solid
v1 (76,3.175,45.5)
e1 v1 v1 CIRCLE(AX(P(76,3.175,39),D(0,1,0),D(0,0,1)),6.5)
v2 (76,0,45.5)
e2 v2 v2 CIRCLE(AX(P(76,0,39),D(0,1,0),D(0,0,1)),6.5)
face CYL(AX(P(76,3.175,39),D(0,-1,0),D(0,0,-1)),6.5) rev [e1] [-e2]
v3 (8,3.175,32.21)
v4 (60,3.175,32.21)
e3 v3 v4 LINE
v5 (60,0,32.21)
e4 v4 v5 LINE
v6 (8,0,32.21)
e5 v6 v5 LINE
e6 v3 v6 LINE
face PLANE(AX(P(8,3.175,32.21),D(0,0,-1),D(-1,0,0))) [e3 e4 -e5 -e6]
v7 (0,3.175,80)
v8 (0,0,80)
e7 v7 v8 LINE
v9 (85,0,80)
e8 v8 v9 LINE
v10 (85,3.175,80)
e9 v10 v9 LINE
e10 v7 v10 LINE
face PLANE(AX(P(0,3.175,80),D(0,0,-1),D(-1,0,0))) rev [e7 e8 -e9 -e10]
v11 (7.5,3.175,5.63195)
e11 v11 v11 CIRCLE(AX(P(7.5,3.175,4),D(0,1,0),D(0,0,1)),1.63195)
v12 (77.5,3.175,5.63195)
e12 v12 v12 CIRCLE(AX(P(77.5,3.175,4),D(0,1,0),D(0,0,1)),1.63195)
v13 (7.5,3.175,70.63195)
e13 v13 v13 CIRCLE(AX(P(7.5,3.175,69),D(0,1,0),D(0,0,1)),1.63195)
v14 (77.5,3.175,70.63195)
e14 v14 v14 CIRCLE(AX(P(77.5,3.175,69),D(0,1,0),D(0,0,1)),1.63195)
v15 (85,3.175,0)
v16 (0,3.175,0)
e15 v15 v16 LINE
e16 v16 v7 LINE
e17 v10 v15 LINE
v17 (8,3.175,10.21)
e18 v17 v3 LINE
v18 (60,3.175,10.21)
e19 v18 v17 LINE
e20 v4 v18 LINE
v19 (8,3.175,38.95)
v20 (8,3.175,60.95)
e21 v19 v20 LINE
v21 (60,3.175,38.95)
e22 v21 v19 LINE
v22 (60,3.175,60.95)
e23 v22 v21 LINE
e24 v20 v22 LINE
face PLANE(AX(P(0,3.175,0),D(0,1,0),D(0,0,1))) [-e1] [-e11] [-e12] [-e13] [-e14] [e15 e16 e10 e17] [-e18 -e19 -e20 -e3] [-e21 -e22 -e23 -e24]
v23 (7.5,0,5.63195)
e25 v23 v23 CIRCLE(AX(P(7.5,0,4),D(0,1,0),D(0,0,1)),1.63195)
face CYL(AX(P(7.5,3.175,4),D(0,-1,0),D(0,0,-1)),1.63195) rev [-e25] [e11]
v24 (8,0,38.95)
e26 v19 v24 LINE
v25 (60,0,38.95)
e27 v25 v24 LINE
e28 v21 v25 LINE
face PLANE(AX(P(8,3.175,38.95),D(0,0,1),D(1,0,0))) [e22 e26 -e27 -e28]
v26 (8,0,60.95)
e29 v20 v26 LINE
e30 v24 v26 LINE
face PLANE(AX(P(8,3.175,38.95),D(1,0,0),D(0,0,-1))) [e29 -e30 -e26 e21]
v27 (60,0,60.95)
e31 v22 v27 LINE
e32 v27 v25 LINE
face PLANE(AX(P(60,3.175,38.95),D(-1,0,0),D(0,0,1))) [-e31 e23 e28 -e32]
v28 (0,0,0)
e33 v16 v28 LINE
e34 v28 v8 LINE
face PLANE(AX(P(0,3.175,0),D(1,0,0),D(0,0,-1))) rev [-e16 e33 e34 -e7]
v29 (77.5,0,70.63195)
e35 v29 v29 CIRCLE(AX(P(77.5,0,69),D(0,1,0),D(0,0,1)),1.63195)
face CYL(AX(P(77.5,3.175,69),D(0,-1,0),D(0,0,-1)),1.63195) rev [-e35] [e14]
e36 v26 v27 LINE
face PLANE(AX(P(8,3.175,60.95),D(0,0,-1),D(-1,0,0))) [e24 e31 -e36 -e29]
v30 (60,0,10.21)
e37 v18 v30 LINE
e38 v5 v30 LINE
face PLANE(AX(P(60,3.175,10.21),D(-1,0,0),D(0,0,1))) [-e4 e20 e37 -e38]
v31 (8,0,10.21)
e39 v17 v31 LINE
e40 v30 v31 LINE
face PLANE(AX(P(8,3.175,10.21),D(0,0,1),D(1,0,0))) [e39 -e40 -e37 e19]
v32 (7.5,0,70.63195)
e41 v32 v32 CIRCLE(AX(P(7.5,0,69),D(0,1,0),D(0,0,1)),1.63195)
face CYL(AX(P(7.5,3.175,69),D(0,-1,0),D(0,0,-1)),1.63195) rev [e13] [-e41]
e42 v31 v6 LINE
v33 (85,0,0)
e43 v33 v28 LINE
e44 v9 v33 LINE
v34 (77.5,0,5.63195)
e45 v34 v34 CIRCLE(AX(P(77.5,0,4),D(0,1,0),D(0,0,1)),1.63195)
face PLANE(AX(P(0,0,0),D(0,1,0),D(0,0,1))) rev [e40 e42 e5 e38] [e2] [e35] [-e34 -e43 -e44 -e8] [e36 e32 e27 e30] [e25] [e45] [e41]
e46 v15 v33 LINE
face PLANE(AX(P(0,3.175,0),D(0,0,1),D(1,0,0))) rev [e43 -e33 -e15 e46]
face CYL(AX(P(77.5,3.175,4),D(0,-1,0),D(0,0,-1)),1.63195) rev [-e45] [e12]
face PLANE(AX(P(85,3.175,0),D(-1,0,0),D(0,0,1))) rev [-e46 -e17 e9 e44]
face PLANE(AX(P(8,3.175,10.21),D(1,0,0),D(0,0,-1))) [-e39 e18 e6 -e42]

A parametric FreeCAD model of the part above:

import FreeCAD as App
import Part
import Sketcher
from FreeCAD import Vector
Q = App.Units.Quantity


def add_polygon(sketch, points):
    """Adds a closed chain of lines whose ends are joined by coincident constraints."""
    first, n = sketch.GeometryCount, len(points)
    for a, b in zip(points, points[1:] + points[:1]):
        sketch.addGeometry(Part.LineSegment(App.Vector(*a, 0), App.Vector(*b, 0)), False)
    for i in range(n):
        sketch.addConstraint(Sketcher.Constraint("Coincident", first + i, 2, first + (i + 1) % n, 1))

doc = App.newDocument("Part")
body = doc.addObject("PartDesign::Body", "Body")

sketch1 = body.newObject("Sketcher::SketchObject", "Sketch")
sketch1.AttachmentSupport = (doc.getObject("XZ_Plane"), [""])
sketch1.MapMode = "FlatFace"
add_polygon(sketch1, [(0, 0), (0, 80), (85, 80), (85, 0)])
sketch1.addGeometry(Part.Circle(Vector(7.5, 69, 0), Vector(0, 0, 1), 1.6), False)
add_polygon(sketch1, [(60, 61), (8, 61), (8, 39), (60, 39)])
sketch1.addGeometry(Part.Circle(Vector(77.5, 69, 0), Vector(0, 0, 1), 1.6), False)
sketch1.addGeometry(Part.Circle(Vector(76, 39, 0), Vector(0, 0, 1), 6.5), False)
add_polygon(sketch1, [(60, 32.2), (8, 32.2), (8, 10.2), (60, 10.2)])
sketch1.addGeometry(Part.Circle(Vector(7.5, 4, 0), Vector(0, 0, 1), 1.6), False)
sketch1.addGeometry(Part.Circle(Vector(77.5, 4, 0), Vector(0, 0, 1), 1.6), False)
sketch1.addConstraint(Sketcher.Constraint("Vertical", 0))
sketch1.addConstraint(Sketcher.Constraint("Horizontal", 1))
sketch1.addConstraint(Sketcher.Constraint("Vertical", 2))
sketch1.addConstraint(Sketcher.Constraint("Horizontal", 3))
sketch1.addConstraint(Sketcher.Constraint("Horizontal", 5))
sketch1.addConstraint(Sketcher.Constraint("Vertical", 6))
sketch1.addConstraint(Sketcher.Constraint("Horizontal", 7))
sketch1.addConstraint(Sketcher.Constraint("Vertical", 8))
sketch1.addConstraint(Sketcher.Constraint("Horizontal", 11))
sketch1.addConstraint(Sketcher.Constraint("Vertical", 12))
sketch1.addConstraint(Sketcher.Constraint("Horizontal", 13))
sketch1.addConstraint(Sketcher.Constraint("Vertical", 14))
sketch1.addConstraint(Sketcher.Constraint("Coincident", 3, 2, -1, 1))
sketch1.addConstraint(Sketcher.Constraint("Equal", 4, 9))
sketch1.addConstraint(Sketcher.Constraint("Equal", 9, 15))
sketch1.addConstraint(Sketcher.Constraint("Equal", 15, 16))
sketch1.addConstraint(Sketcher.Constraint("Horizontal", 4, 3, 9, 3))
sketch1.addConstraint(Sketcher.Constraint("Horizontal", 15, 3, 16, 3))
sketch1.addConstraint(Sketcher.Constraint("Vertical", 4, 3, 15, 3))
sketch1.addConstraint(Sketcher.Constraint("Vertical", 9, 3, 16, 3))
sketch1.addConstraint(Sketcher.Constraint("Vertical", 6, 2, 11, 2))
sketch1.addConstraint(Sketcher.Constraint("Vertical", 8, 2, 13, 2))
sketch1.addConstraint(Sketcher.Constraint("Equal", 8, 12))
sketch1.addConstraint(Sketcher.Constraint("Diameter", 10, Q("13 mm")))
sketch1.addConstraint(Sketcher.Constraint("DistanceX", 1, 1, 1, 2, Q("85 mm")))
sketch1.addConstraint(Sketcher.Constraint("DistanceX", 5, 2, 5, 1, Q("52 mm")))
sketch1.addConstraint(Sketcher.Constraint("DistanceY", 0, 1, 0, 2, Q("80 mm")))
sketch1.addConstraint(Sketcher.Constraint("DistanceY", 6, 2, 6, 1, Q("22 mm")))
sketch1.addConstraint(Sketcher.Constraint("DistanceY", -1, 1, 4, 3, Q("69 mm")))
sketch1.addConstraint(Sketcher.Constraint("DistanceX", -1, 1, 10, 3, Q("76 mm")))
sketch1.addConstraint(Sketcher.Constraint("DistanceY", -1, 1, 10, 3, Q("39 mm")))
sketch1.addConstraint(Sketcher.Constraint("DistanceY", -1, 1, 15, 3, Q("4 mm")))
sketch1.addConstraint(Sketcher.Constraint("DistanceX", -1, 1, 5, 2, Q("8 mm")))
sketch1.addConstraint(Sketcher.Constraint("DistanceX", 4, 3, 9, 3, Q("70 mm")))
sketch1.addConstraint(Sketcher.Constraint("Diameter", 4, Q("3.2639 mm")))
sketch1.addConstraint(Sketcher.Constraint("DistanceX", -1, 1, 4, 3, Q("7.5 mm")))
sketch1.addConstraint(Sketcher.Constraint("DistanceY", -1, 1, 5, 2, Q("60.95 mm")))
sketch1.addConstraint(Sketcher.Constraint("DistanceY", -1, 1, 11, 2, Q("32.21 mm")))
pad1 = body.newObject("PartDesign::Pad", "Pad")
pad1.Profile = sketch1
pad1.Length = 3.175
pad1.Reversed = True

doc.recompute()
